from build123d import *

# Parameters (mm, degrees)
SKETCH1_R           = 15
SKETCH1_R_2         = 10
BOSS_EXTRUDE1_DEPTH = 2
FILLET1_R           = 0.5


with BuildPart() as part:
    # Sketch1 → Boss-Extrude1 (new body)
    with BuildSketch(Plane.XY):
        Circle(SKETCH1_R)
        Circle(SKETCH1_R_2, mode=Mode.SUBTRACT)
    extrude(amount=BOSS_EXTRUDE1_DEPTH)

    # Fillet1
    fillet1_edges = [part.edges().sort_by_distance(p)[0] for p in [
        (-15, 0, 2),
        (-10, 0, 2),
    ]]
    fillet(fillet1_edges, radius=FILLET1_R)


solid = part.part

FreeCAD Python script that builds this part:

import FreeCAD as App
import Part
import Sketcher

V = App.Vector
Q = App.Units.Quantity


def edges_at(feature, points):
    """Names of the edges that pass closest to the given points."""
    edges = feature.Shape.Edges
    near = lambda p: min(range(len(edges)), key=lambda i: edges[i].distToShape(Part.Vertex(*p))[0])
    return sorted({f"Edge{near(p) + 1}" for p in points})

doc = App.newDocument("Part")
params = doc.addObject("Spreadsheet::Sheet", "Params")
for row, (alias, value) in enumerate([
    ("sketch1_diameter", "30 mm"),
    ("sketch1_diameter2", "20 mm"),
    ("pad1_length", "2 mm"),
    ("fillet_radius", "0.5 mm"),
], start=1):
    params.set(f"A{row}", alias)
    params.set(f"B{row}", "=" + value)
    params.setAlias(f"B{row}", alias)

body = doc.addObject("PartDesign::Body", "Body")

sketch1 = body.newObject("Sketcher::SketchObject", "Sketch")
sketch1.AttachmentSupport = (doc.getObject("XY_Plane"), [""])
sketch1.MapMode = "FlatFace"
sketch1.addGeometry(Part.Circle(V(0, 0, 0), V(0, 0, 1), 15), False)
sketch1.addGeometry(Part.Circle(V(0, 0, 0), V(0, 0, 1), 10), False)
sketch1.addConstraint(Sketcher.Constraint("Coincident", 0, 3, -1, 1))
sketch1.addConstraint(Sketcher.Constraint("Coincident", 1, 3, -1, 1))
sketch1.addConstraint(Sketcher.Constraint("Diameter", 0, Q("30 mm")))
sketch1.addConstraint(Sketcher.Constraint("Diameter", 1, Q("20 mm")))
sketch1.setExpression("Constraints[2]", "Params.sketch1_diameter")
sketch1.setExpression("Constraints[3]", "Params.sketch1_diameter2")
pad1 = body.newObject("PartDesign::Pad", "Pad")
pad1.Profile = sketch1
pad1.setExpression("Length", "Params.pad1_length")
doc.recompute()

fillet = body.newObject("PartDesign::Fillet", "Fillet")
fillet.Base = (pad1, edges_at(pad1, [(-15, 0, 2), (-10, 0, 2)]))
fillet.setExpression("Radius", "Params.fillet_radius")

doc.recompute()
